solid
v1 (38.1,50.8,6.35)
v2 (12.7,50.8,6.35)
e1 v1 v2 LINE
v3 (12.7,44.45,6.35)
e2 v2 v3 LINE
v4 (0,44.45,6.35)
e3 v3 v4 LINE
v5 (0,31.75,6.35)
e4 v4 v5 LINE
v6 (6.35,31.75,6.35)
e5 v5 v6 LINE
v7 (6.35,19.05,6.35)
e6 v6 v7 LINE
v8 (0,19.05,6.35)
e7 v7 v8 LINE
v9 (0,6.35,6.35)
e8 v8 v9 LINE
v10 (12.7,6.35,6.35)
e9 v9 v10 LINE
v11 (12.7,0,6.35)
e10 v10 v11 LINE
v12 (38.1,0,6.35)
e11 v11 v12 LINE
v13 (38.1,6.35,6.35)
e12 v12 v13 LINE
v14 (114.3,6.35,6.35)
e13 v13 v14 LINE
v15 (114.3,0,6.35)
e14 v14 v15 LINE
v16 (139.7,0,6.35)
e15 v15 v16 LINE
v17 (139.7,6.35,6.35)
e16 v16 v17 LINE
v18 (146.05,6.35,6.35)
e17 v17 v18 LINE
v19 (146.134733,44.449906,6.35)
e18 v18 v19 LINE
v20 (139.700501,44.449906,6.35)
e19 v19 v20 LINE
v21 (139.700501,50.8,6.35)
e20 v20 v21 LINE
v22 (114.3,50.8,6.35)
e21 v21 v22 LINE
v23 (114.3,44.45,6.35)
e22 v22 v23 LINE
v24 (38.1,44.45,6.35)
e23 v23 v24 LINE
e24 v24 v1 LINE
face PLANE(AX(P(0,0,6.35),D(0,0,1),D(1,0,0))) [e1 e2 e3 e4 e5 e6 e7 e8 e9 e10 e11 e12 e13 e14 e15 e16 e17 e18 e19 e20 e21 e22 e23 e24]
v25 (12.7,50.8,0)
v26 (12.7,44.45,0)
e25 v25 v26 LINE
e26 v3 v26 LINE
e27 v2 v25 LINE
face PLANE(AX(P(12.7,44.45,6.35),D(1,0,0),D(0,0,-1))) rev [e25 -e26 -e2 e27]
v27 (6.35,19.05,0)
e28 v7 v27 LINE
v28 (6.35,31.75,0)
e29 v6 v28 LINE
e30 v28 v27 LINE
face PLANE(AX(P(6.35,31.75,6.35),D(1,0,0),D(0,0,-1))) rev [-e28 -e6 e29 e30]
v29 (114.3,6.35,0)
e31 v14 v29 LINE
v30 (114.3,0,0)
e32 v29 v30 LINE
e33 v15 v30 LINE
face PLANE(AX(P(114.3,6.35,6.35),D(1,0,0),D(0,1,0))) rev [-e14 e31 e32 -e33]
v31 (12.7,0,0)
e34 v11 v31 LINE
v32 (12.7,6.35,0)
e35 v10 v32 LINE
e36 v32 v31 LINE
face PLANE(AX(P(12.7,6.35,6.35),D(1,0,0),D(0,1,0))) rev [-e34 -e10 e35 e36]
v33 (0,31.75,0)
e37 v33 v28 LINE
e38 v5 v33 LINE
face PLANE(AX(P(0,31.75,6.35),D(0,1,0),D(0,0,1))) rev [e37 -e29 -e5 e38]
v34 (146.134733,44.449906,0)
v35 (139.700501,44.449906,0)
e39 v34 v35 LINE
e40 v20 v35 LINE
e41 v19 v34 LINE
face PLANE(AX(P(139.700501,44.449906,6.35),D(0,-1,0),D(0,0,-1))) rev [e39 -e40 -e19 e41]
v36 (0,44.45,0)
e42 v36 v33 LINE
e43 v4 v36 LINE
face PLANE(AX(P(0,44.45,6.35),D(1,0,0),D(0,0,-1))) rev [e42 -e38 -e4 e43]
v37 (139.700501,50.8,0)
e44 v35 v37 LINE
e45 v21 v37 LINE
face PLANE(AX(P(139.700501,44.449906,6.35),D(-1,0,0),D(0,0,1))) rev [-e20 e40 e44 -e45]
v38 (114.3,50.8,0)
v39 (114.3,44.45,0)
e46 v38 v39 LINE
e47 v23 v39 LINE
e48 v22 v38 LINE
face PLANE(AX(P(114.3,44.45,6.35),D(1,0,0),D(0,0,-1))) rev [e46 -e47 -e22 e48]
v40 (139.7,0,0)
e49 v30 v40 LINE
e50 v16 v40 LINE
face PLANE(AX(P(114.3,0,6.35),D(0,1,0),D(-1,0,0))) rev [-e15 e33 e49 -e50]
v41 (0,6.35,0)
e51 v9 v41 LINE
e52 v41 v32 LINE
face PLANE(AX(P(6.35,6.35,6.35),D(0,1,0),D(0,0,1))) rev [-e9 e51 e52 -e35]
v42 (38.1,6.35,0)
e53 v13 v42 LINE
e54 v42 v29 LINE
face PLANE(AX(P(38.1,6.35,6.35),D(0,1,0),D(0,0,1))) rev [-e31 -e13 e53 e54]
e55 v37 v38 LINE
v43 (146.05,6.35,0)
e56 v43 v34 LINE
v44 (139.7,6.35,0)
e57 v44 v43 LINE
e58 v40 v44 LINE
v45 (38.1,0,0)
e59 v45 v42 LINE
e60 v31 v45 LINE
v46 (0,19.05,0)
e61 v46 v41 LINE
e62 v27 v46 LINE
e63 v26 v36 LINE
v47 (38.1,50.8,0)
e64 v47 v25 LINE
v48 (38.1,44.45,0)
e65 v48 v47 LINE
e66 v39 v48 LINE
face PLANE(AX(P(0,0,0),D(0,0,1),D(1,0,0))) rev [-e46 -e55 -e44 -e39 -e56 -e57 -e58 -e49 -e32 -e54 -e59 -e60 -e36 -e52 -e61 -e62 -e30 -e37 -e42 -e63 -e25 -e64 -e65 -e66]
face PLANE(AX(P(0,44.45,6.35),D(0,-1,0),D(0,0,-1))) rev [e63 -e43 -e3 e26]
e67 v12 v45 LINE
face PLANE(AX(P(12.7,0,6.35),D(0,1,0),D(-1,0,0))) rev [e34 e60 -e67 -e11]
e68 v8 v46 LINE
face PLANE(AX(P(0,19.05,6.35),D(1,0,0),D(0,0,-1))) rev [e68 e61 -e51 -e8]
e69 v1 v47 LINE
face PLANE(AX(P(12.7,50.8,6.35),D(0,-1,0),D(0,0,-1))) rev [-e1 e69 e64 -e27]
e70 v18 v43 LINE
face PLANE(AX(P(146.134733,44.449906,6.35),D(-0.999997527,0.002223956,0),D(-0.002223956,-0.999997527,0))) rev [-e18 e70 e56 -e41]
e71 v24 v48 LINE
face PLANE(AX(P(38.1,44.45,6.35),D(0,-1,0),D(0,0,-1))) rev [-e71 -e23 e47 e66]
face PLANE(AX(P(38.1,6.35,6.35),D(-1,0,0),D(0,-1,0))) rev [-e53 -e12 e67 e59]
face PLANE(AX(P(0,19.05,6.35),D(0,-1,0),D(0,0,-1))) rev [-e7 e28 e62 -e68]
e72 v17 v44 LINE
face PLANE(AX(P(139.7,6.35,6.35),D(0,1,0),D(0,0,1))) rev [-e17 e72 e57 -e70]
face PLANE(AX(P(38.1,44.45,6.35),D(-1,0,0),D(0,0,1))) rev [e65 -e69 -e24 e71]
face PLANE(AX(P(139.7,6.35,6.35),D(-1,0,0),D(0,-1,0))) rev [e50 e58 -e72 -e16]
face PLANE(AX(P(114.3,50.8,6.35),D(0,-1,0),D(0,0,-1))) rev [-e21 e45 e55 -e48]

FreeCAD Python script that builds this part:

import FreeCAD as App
import Part
import Sketcher
from FreeCAD import Vector
Q = App.Units.Quantity

doc = App.newDocument("Part")
params = doc.addObject("Spreadsheet::Sheet", "Params")
for row, (alias, value) in enumerate([
    ("sketch1_width", "1 in"),
    ("sketch1_width2", "3 in"),
    ("sketch1_width3", "0.5 in"),
    ("sketch1_length", "1.5 in"),
    ("pad1_length", "0.25 in"),
], start=1):
    params.set(f"A{row}", alias)
    params.set(f"B{row}", "=" + value)
    params.setAlias(f"B{row}", alias)

body = doc.addObject("PartDesign::Body", "Body")

sketch1 = body.newObject("Sketcher::SketchObject", "Sketch")
sketch1.AttachmentSupport = (doc.getObject("XY_Plane"), [""])
sketch1.MapMode = "FlatFace"
sketch1.addGeometry(Part.LineSegment(Vector(13, 44, 0), Vector(0, 44, 0)), False)
sketch1.addGeometry(Part.LineSegment(Vector(0, 44, 0), Vector(0, 32, 0)), False)
sketch1.addGeometry(Part.LineSegment(Vector(0, 32, 0), Vector(6, 32, 0)), False)
sketch1.addGeometry(Part.LineSegment(Vector(6, 32, 0), Vector(6, 19, 0)), False)
sketch1.addGeometry(Part.LineSegment(Vector(6, 19, 0), Vector(0, 19, 0)), False)
sketch1.addGeometry(Part.LineSegment(Vector(0, 19, 0), Vector(0, 6, 0)), False)
sketch1.addGeometry(Part.LineSegment(Vector(0, 6, 0), Vector(13, 6, 0)), False)
sketch1.addGeometry(Part.LineSegment(Vector(13, 6, 0), Vector(13, 0, 0)), False)
sketch1.addGeometry(Part.LineSegment(Vector(13, 0, 0), Vector(38, 0, 0)), False)
sketch1.addGeometry(Part.LineSegment(Vector(38, 0, 0), Vector(38, 6, 0)), False)
sketch1.addGeometry(Part.LineSegment(Vector(38, 6, 0), Vector(114, 6, 0)), False)
sketch1.addGeometry(Part.LineSegment(Vector(114, 6, 0), Vector(114, 0, 0)), False)
sketch1.addGeometry(Part.LineSegment(Vector(114, 0, 0), Vector(140, 0, 0)), False)
sketch1.addGeometry(Part.LineSegment(Vector(140, 0, 0), Vector(140, 6, 0)), False)
sketch1.addGeometry(Part.LineSegment(Vector(140, 6, 0), Vector(146, 6, 0)), False)
sketch1.addGeometry(Part.LineSegment(Vector(146, 6, 0), Vector(146, 44, 0)), False)
sketch1.addGeometry(Part.LineSegment(Vector(146, 44, 0), Vector(140, 44, 0)), False)
sketch1.addGeometry(Part.LineSegment(Vector(140, 44, 0), Vector(140, 51, 0)), False)
sketch1.addGeometry(Part.LineSegment(Vector(140, 51, 0), Vector(114, 51, 0)), False)
sketch1.addGeometry(Part.LineSegment(Vector(114, 51, 0), Vector(114, 44, 0)), False)
sketch1.addGeometry(Part.LineSegment(Vector(114, 44, 0), Vector(38, 44, 0)), False)
sketch1.addGeometry(Part.LineSegment(Vector(38, 44, 0), Vector(38, 51, 0)), False)
sketch1.addGeometry(Part.LineSegment(Vector(38, 51, 0), Vector(13, 51, 0)), False)
sketch1.addGeometry(Part.LineSegment(Vector(13, 51, 0), Vector(13, 44, 0)), False)
sketch1.addConstraint(Sketcher.Constraint("Coincident", 0, 2, 1, 1))
sketch1.addConstraint(Sketcher.Constraint("Coincident", 1, 2, 2, 1))
sketch1.addConstraint(Sketcher.Constraint("Coincident", 2, 2, 3, 1))
sketch1.addConstraint(Sketcher.Constraint("Coincident", 3, 2, 4, 1))
sketch1.addConstraint(Sketcher.Constraint("Coincident", 4, 2, 5, 1))
sketch1.addConstraint(Sketcher.Constraint("Coincident", 5, 2, 6, 1))
sketch1.addConstraint(Sketcher.Constraint("Coincident", 6, 2, 7, 1))
sketch1.addConstraint(Sketcher.Constraint("Coincident", 7, 2, 8, 1))
sketch1.addConstraint(Sketcher.Constraint("Coincident", 8, 2, 9, 1))
sketch1.addConstraint(Sketcher.Constraint("Coincident", 9, 2, 10, 1))
sketch1.addConstraint(Sketcher.Constraint("Coincident", 10, 2, 11, 1))
sketch1.addConstraint(Sketcher.Constraint("Coincident", 11, 2, 12, 1))
sketch1.addConstraint(Sketcher.Constraint("Coincident", 12, 2, 13, 1))
sketch1.addConstraint(Sketcher.Constraint("Coincident", 13, 2, 14, 1))
sketch1.addConstraint(Sketcher.Constraint("Coincident", 14, 2, 15, 1))
sketch1.addConstraint(Sketcher.Constraint("Coincident", 15, 2, 16, 1))
sketch1.addConstraint(Sketcher.Constraint("Coincident", 16, 2, 17, 1))
sketch1.addConstraint(Sketcher.Constraint("Coincident", 17, 2, 18, 1))
sketch1.addConstraint(Sketcher.Constraint("Coincident", 18, 2, 19, 1))
sketch1.addConstraint(Sketcher.Constraint("Coincident", 19, 2, 20, 1))
sketch1.addConstraint(Sketcher.Constraint("Coincident", 20, 2, 21, 1))
sketch1.addConstraint(Sketcher.Constraint("Coincident", 21, 2, 22, 1))
sketch1.addConstraint(Sketcher.Constraint("Coincident", 22, 2, 23, 1))
sketch1.addConstraint(Sketcher.Constraint("Coincident", 23, 2, 0, 1))
sketch1.addConstraint(Sketcher.Constraint("Horizontal", 0))
sketch1.addConstraint(Sketcher.Constraint("Vertical", 1))
sketch1.addConstraint(Sketcher.Constraint("Horizontal", 2))
sketch1.addConstraint(Sketcher.Constraint("Vertical", 3))
sketch1.addConstraint(Sketcher.Constraint("Horizontal", 4))
sketch1.addConstraint(Sketcher.Constraint("Vertical", 5))
sketch1.addConstraint(Sketcher.Constraint("Horizontal", 6))
sketch1.addConstraint(Sketcher.Constraint("Vertical", 7))
sketch1.addConstraint(Sketcher.Constraint("Horizontal", 8))
sketch1.addConstraint(Sketcher.Constraint("Vertical", 9))
sketch1.addConstraint(Sketcher.Constraint("Horizontal", 10))
sketch1.addConstraint(Sketcher.Constraint("Vertical", 11))
sketch1.addConstraint(Sketcher.Constraint("Horizontal", 12))
sketch1.addConstraint(Sketcher.Constraint("Vertical", 13))
sketch1.addConstraint(Sketcher.Constraint("Horizontal", 14))
sketch1.addConstraint(Sketcher.Constraint("Horizontal", 16))
sketch1.addConstraint(Sketcher.Constraint("Vertical", 17))
sketch1.addConstraint(Sketcher.Constraint("Horizontal", 18))
sketch1.addConstraint(Sketcher.Constraint("Vertical", 19))
sketch1.addConstraint(Sketcher.Constraint("Horizontal", 20))
sketch1.addConstraint(Sketcher.Constraint("Vertical", 21))
sketch1.addConstraint(Sketcher.Constraint("Horizontal", 22))
sketch1.addConstraint(Sketcher.Constraint("Vertical", 23))
sketch1.addConstraint(Sketcher.Constraint("PointOnObject", 0, 2, -2))
sketch1.addConstraint(Sketcher.Constraint("PointOnObject", 4, 2, -2))
sketch1.addConstraint(Sketcher.Constraint("PointOnObject", 7, 2, -1))
sketch1.addConstraint(Sketcher.Constraint("PointOnObject", 11, 2, -1))
sketch1.addConstraint(Sketcher.Constraint("Horizontal", 6, 2, 9, 2))
sketch1.addConstraint(Sketcher.Constraint("Horizontal", 10, 2, 13, 2))
sketch1.addConstraint(Sketcher.Constraint("Horizontal", 0, 2, 19, 2))
sketch1.addConstraint(Sketcher.Constraint("Horizontal", 18, 2, 21, 2))
sketch1.addConstraint(Sketcher.Constraint("Vertical", 11, 2, 18, 2))
sketch1.addConstraint(Sketcher.Constraint("Vertical", 9, 2, 20, 2))
sketch1.addConstraint(Sketcher.Constraint("Vertical", 7, 2, 22, 2))
sketch1.addConstraint(Sketcher.Constraint("Equal", 8, 12))
sketch1.addConstraint(Sketcher.Constraint("Equal", 4, 14))
sketch1.addConstraint(Sketcher.Constraint("Equal", 6, 1))
sketch1.addConstraint(Sketcher.Constraint("Equal", 1, 3))
sketch1.addConstraint(Sketcher.Constraint("Equal", 3, 5))
sketch1.addConstraint(Sketcher.Constraint("Equal", 14, 7))
sketch1.addConstraint(Sketcher.Constraint("Equal", 13, 19))
sketch1.addConstraint(Sketcher.Constraint("DistanceX", 8, 1, 8, 2, Q("1 in")))
sketch1.addConstraint(Sketcher.Constraint("DistanceX", 10, 1, 10, 2, Q("3 in")))
sketch1.addConstraint(Sketcher.Constraint("DistanceX", 0, 2, 0, 1, Q("0.5 in")))
sketch1.addConstraint(Sketcher.Constraint("DistanceY", -1, 1, 17, 2, Q("2 in")))
sketch1.addConstraint(Sketcher.Constraint("Distance", 15, Q("1.5 in")))
sketch1.addConstraint(Sketcher.Constraint("DistanceX", 18, 2, 18, 1, Q("25.400501 mm")))
sketch1.addConstraint(Sketcher.Constraint("DistanceX", 16, 2, 16, 1, Q("6.434232 mm")))
sketch1.setExpression("Constraints[65]", "Params.sketch1_width")
sketch1.setExpression("Constraints[66]", "Params.sketch1_width2")
sketch1.setExpression("Constraints[67]", "Params.sketch1_width3")
sketch1.setExpression("Constraints[69]", "Params.sketch1_length")
pad1 = body.newObject("PartDesign::Pad", "Pad")
pad1.Profile = sketch1
pad1.setExpression("Length", "Params.pad1_length")

doc.recompute()
